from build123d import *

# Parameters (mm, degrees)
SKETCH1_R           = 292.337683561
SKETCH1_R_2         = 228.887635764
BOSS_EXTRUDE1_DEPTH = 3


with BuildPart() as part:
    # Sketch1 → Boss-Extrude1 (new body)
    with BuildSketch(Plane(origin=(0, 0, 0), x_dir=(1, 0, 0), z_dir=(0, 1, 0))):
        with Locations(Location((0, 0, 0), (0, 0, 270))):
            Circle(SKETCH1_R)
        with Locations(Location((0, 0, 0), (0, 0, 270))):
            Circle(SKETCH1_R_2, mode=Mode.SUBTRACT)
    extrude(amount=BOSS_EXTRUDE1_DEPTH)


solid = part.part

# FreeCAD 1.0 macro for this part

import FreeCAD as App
import Part
import Sketcher

doc = App.newDocument("Part")
body = doc.addObject("PartDesign::Body", "Body")

sketch1 = body.newObject("Sketcher::SketchObject", "Sketch")
sketch1.AttachmentSupport = (doc.getObject("XZ_Plane"), [""])
sketch1.MapMode = "FlatFace"
sketch1.addGeometry(Part.Circle(App.Vector(0, 0, 0), App.Vector(0, 0, 1), 292), False)
sketch1.addGeometry(Part.Circle(App.Vector(0, 0, 0), App.Vector(0, 0, 1), 229), False)
sketch1.addConstraint(Sketcher.Constraint("Coincident", 0, 3, -1, 1))
sketch1.addConstraint(Sketcher.Constraint("Coincident", 1, 3, -1, 1))
sketch1.addConstraint(Sketcher.Constraint("Diameter", 1, 457.775272))
sketch1.addConstraint(Sketcher.Constraint("Diameter", 0, 584.675367))
pad1 = body.newObject("PartDesign::Pad", "Pad")
pad1.Profile = sketch1
pad1.Length = 3
pad1.Reversed = True

doc.recompute()
